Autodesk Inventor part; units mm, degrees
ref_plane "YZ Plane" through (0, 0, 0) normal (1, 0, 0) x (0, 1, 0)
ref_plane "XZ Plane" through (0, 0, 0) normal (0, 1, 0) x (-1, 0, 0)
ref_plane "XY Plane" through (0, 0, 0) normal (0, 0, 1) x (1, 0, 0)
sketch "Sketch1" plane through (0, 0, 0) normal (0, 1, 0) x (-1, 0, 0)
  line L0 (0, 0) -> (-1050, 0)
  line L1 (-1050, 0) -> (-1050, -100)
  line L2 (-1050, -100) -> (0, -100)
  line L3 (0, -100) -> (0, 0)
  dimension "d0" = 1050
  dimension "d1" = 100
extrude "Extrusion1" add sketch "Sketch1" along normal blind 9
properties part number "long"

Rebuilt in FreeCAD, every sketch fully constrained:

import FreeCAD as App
import Part
import Sketcher

V = App.Vector
Q = App.Units.Quantity

doc = App.newDocument("Part")
body = doc.addObject("PartDesign::Body", "Body")

# Sketch on XZ plane
sketch1 = body.newObject("Sketcher::SketchObject", "Sketch")
sketch1.AttachmentSupport = (doc.getObject("XZ_Plane"), [""])
sketch1.MapMode = "FlatFace"
sketch1.addGeometry([
    Part.LineSegment(V(0, -100, 0), V(0, 0, 0)),
    Part.LineSegment(V(0, 0, 0), V(1050, 0, 0)),
    Part.LineSegment(V(1050, 0, 0), V(1050, -100, 0)),
    Part.LineSegment(V(1050, -100, 0), V(0, -100, 0)),
], False)
sketch1.addConstraint([
    Sketcher.Constraint("Coincident", 0, 2, 1, 1),
    Sketcher.Constraint("Coincident", 1, 2, 2, 1),
    Sketcher.Constraint("Coincident", 2, 2, 3, 1),
    Sketcher.Constraint("Coincident", 3, 2, 0, 1),
    Sketcher.Constraint("Vertical", 0),
    Sketcher.Constraint("Horizontal", 1),
    Sketcher.Constraint("Vertical", 2),
    Sketcher.Constraint("Horizontal", 3),
    Sketcher.Constraint("Coincident", 0, 2, -1, 1),
    Sketcher.Constraint("DistanceX", 1, 1, 1, 2, Q("1050 mm")),
    Sketcher.Constraint("DistanceY", 0, 1, 0, 2, Q("100 mm")),
])
pad1 = body.newObject("PartDesign::Pad", "Pad")
pad1.Profile = sketch1
pad1.Length = 9
pad1.Reversed = True

doc.recompute()
